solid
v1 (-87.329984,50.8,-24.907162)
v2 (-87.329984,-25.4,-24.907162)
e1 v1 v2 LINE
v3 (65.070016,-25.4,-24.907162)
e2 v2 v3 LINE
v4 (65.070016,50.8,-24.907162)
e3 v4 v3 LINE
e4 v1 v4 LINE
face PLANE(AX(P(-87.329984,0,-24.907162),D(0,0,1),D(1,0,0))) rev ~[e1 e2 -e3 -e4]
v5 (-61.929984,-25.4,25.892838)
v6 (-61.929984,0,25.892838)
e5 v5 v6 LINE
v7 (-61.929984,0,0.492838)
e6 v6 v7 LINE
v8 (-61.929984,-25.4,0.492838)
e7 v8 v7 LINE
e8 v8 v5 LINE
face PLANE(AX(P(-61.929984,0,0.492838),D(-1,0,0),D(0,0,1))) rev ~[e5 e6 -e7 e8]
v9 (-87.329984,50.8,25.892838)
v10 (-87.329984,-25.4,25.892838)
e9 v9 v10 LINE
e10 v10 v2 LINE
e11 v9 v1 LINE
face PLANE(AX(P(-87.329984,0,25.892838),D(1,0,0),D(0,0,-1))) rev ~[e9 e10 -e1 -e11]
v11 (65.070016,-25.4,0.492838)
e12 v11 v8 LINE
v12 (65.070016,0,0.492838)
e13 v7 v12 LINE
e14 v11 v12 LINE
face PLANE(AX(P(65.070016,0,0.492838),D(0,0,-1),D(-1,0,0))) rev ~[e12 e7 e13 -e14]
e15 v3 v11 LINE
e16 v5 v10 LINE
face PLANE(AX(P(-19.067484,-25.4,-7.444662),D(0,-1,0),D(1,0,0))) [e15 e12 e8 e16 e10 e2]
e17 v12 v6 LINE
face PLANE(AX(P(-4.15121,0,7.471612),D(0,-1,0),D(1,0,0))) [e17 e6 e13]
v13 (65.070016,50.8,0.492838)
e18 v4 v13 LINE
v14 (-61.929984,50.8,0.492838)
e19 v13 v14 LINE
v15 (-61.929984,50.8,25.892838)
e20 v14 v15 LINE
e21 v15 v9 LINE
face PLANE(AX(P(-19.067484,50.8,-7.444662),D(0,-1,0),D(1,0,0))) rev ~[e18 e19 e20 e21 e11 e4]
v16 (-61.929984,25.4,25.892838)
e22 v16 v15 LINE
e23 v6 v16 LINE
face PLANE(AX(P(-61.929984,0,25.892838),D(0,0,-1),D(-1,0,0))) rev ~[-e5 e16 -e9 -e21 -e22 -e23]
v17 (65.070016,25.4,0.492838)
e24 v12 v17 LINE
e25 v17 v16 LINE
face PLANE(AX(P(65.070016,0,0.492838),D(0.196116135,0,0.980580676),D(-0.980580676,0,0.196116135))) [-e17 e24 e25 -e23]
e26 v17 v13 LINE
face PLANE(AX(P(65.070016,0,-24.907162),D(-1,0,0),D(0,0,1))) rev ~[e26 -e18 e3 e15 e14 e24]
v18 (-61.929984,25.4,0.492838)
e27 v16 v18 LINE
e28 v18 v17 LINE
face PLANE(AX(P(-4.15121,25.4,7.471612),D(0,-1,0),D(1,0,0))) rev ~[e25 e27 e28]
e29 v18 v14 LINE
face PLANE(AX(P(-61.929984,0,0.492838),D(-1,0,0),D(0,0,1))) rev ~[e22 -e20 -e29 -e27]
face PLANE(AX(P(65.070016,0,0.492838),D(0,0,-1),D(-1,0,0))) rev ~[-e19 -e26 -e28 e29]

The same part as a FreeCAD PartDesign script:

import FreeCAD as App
import Part
import Sketcher

V = App.Vector
Q = App.Units.Quantity


def add_polygon(sketch, points):
    """Adds a closed chain of lines whose ends are joined by coincident constraints."""
    first, n = sketch.GeometryCount, len(points)
    for a, b in zip(points, points[1:] + points[:1]):
        sketch.addGeometry(Part.LineSegment(App.Vector(*a, 0), App.Vector(*b, 0)), False)
    for i in range(n):
        sketch.addConstraint(Sketcher.Constraint("Coincident", first + i, 2, first + (i + 1) % n, 1))

doc = App.newDocument("Part")
params = doc.addObject("Spreadsheet::Sheet", "Params")
for row, (alias, value) in enumerate([
    ("sketch1_width", "1 in"),
    ("sketch1_width2", "6 in"),
    ("pad1_length", "2 in"),
    ("sketch2_width", "1 in"),
    ("sketch2_width2", "6 in"),
    ("pad2_length", "1 in"),
    ("sketch3_width", "5 in"),
    ("sketch3_height", "1 in"),
    ("pad3_length", "1 in"),
], start=1):
    params.set(f"A{row}", alias)
    params.set(f"B{row}", "=" + value)
    params.setAlias(f"B{row}", alias)

body = doc.addObject("PartDesign::Body", "Body")

# Sketch on XZ plane
sketch1 = body.newObject("Sketcher::SketchObject", "Sketch")
sketch1.AttachmentSupport = (doc.getObject("XZ_Plane"), [""])
sketch1.MapMode = "FlatFace"
add_polygon(sketch1, [(-62, 26), (-87, 26), (-87, -25), (65, -25), (65, 0), (-62, 0)])  # lines 0-5
sketch1.addConstraint([
    Sketcher.Constraint("Horizontal", 0),
    Sketcher.Constraint("Vertical", 1),
    Sketcher.Constraint("Horizontal", 2),
    Sketcher.Constraint("Vertical", 3),
    Sketcher.Constraint("Horizontal", 4),
    Sketcher.Constraint("Vertical", 5),
    Sketcher.Constraint("Equal", 0, 3),
    Sketcher.Constraint("Equal", 3, 5),
    Sketcher.Constraint("DistanceX", 0, 2, 0, 1, Q("1 in")),
    Sketcher.Constraint("DistanceX", 2, 1, 2, 2, Q("6 in")),
    Sketcher.Constraint("DistanceY", -1, 1, 0, 2, 25.892838),
    Sketcher.Constraint("DistanceX", 0, 2, -1, 1, 87.329984),
])
sketch1.setExpression("Constraints[14]", "Params.sketch1_width")
sketch1.setExpression("Constraints[15]", "Params.sketch1_width2")
pad1 = body.newObject("PartDesign::Pad", "Pad")
pad1.Profile = sketch1
pad1.setExpression("Length", "Params.pad1_length")
pad1.Reversed = True

# Sketch on XZ plane
sketch2 = body.newObject("Sketcher::SketchObject", "Sketch001")
sketch2.AttachmentSupport = (doc.getObject("XZ_Plane"), [""])
sketch2.MapMode = "FlatFace"
add_polygon(sketch2, [(-62, 26), (-87, 26), (-87, -25), (65, -25), (65, 0), (-62, 0)])  # lines 0-5
sketch2.addConstraint([
    Sketcher.Constraint("Horizontal", 0),
    Sketcher.Constraint("Vertical", 1),
    Sketcher.Constraint("Horizontal", 2),
    Sketcher.Constraint("Vertical", 3),
    Sketcher.Constraint("Horizontal", 4),
    Sketcher.Constraint("Vertical", 5),
    Sketcher.Constraint("Equal", 0, 3),
    Sketcher.Constraint("Equal", 3, 5),
    Sketcher.Constraint("DistanceX", 0, 2, 0, 1, Q("1 in")),
    Sketcher.Constraint("DistanceX", 2, 1, 2, 2, Q("6 in")),
    Sketcher.Constraint("DistanceY", -1, 1, 0, 2, 25.892838),
    Sketcher.Constraint("DistanceX", 0, 2, -1, 1, 87.329984),
])
sketch2.setExpression("Constraints[14]", "Params.sketch2_width")
sketch2.setExpression("Constraints[15]", "Params.sketch2_width2")
pad2 = body.newObject("PartDesign::Pad", "Pad001")
pad2.Profile = sketch2
pad2.setExpression("Length", "Params.pad2_length")

# Sketch on XZ plane
sketch3 = body.newObject("Sketcher::SketchObject", "Sketch002")
sketch3.AttachmentSupport = (doc.getObject("XZ_Plane"), [""])
sketch3.MapMode = "FlatFace"
add_polygon(sketch3, [(65, 0), (-62, 26), (-62, 0)])  # lines 0-2
sketch3.addConstraint([
    Sketcher.Constraint("Vertical", 1),
    Sketcher.Constraint("Horizontal", 2),
    Sketcher.Constraint("DistanceX", 2, 1, 2, 2, Q("5 in")),
    Sketcher.Constraint("DistanceY", 1, 2, 1, 1, Q("1 in")),
    Sketcher.Constraint("DistanceY", -1, 1, 0, 2, 25.892838),
    Sketcher.Constraint("DistanceX", 0, 2, -1, 1, 61.929984),
])
sketch3.setExpression("Constraints[5]", "Params.sketch3_width")
sketch3.setExpression("Constraints[6]", "Params.sketch3_height")
pad3 = body.newObject("PartDesign::Pad", "Pad002")
pad3.Profile = sketch3
pad3.setExpression("Length", "Params.pad3_length")
pad3.Reversed = True

doc.recompute()
